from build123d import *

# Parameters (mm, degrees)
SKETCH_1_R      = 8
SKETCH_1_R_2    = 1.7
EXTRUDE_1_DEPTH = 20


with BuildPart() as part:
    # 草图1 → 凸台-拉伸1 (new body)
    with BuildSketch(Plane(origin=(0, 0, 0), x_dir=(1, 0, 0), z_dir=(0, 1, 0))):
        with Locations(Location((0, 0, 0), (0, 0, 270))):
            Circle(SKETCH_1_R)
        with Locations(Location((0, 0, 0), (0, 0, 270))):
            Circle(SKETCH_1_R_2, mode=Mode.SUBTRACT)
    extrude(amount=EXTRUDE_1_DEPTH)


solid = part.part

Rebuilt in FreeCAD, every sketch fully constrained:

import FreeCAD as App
import Part
import Sketcher

doc = App.newDocument("Part")
body = doc.addObject("PartDesign::Body", "Body")

sketch1 = body.newObject("Sketcher::SketchObject", "Sketch")
sketch1.AttachmentSupport = (doc.getObject("XZ_Plane"), [""])
sketch1.MapMode = "FlatFace"
sketch1.addGeometry(Part.Circle(App.Vector(0, 0, 0), App.Vector(0, 0, 1), 8), False)
sketch1.addGeometry(Part.Circle(App.Vector(0, 0, 0), App.Vector(0, 0, 1), 1.7), False)
sketch1.addConstraint(Sketcher.Constraint("Coincident", 0, 3, -1, 1))
sketch1.addConstraint(Sketcher.Constraint("Coincident", 1, 3, -1, 1))
sketch1.addConstraint(Sketcher.Constraint("Diameter", 0, 16.0))
sketch1.addConstraint(Sketcher.Constraint("Diameter", 1, 3.4))
pad1 = body.newObject("PartDesign::Pad", "Pad")
pad1.Profile = sketch1
pad1.Length = 20
pad1.Reversed = True

doc.recompute()
